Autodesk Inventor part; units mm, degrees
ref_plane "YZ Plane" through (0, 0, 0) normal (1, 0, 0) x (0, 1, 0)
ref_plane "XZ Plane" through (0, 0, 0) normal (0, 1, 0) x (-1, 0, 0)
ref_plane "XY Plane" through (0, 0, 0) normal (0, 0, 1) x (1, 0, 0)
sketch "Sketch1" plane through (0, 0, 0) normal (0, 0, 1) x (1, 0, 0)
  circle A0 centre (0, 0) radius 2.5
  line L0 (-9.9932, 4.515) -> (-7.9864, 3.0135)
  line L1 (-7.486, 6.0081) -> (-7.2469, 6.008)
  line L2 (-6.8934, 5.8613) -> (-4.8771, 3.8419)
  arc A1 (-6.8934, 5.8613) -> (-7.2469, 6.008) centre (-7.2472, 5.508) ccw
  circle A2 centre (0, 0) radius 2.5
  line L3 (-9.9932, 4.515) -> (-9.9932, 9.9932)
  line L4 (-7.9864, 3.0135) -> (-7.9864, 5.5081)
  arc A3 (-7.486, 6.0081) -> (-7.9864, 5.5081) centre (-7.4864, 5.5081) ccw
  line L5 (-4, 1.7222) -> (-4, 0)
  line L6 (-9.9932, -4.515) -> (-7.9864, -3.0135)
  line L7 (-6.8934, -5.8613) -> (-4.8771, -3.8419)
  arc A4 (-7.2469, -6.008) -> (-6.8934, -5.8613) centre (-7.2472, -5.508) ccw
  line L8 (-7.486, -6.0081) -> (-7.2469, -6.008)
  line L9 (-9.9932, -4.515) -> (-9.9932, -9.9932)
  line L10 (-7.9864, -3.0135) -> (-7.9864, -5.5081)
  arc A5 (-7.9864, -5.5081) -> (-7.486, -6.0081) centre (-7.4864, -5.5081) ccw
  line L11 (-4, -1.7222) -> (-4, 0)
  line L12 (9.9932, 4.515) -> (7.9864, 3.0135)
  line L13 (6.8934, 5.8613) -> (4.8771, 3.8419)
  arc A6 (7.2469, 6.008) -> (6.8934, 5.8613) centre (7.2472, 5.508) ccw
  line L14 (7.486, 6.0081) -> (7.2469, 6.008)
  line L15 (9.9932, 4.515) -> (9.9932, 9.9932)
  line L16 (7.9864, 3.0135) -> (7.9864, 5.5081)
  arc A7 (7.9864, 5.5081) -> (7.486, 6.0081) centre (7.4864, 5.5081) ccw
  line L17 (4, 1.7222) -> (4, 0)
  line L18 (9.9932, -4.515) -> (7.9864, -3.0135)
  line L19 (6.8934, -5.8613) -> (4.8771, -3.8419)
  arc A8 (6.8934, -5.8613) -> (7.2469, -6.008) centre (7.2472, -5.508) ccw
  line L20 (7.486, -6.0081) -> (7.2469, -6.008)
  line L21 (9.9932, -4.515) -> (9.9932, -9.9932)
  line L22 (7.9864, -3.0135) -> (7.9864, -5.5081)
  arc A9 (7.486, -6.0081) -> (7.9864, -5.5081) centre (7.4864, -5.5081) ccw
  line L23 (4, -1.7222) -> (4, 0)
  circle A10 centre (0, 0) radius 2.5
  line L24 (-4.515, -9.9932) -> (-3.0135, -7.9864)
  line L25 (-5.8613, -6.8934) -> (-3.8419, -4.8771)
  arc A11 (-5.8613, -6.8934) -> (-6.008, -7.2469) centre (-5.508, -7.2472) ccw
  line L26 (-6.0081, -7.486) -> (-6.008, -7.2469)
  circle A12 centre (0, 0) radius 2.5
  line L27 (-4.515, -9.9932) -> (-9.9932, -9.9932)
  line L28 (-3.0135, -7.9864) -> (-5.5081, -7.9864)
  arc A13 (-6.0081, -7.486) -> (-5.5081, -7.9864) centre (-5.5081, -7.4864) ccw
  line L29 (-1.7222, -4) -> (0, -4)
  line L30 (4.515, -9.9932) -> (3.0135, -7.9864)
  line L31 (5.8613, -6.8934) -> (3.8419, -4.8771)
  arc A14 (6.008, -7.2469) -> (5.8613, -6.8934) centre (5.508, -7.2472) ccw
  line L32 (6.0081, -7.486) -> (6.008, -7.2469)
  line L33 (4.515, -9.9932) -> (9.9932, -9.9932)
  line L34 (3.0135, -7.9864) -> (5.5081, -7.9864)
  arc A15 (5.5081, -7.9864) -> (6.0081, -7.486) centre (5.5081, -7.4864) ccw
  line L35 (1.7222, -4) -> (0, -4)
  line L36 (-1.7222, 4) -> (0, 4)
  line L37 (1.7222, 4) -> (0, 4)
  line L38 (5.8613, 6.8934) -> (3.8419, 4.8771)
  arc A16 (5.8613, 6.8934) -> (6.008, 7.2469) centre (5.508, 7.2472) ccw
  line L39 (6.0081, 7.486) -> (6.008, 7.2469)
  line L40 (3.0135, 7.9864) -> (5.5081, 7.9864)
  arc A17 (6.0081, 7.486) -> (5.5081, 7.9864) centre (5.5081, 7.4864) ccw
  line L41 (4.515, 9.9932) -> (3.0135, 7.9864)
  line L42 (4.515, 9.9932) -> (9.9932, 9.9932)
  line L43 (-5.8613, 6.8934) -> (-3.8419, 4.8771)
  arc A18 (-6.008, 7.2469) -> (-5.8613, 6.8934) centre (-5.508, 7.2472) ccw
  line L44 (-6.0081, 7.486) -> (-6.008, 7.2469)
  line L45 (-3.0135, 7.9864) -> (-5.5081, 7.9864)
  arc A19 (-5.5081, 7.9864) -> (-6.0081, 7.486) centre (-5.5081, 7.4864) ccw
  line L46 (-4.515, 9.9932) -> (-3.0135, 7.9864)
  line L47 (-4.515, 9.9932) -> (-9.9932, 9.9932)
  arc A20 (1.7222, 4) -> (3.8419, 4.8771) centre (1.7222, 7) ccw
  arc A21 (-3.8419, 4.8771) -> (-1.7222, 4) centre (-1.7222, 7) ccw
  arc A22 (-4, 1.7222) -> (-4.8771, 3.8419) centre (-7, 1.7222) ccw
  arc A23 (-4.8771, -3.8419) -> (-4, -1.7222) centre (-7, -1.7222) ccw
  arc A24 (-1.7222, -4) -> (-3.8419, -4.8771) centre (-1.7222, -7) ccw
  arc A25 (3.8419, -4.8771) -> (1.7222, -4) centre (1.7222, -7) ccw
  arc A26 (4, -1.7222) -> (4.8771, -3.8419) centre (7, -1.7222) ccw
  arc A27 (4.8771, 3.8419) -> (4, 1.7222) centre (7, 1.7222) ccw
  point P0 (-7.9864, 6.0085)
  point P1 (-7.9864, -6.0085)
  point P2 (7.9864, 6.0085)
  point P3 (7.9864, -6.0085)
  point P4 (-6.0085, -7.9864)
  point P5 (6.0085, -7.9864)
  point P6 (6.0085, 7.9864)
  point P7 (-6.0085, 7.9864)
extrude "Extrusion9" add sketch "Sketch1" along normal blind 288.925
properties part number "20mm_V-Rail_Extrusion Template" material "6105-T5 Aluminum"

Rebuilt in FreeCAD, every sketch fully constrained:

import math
import FreeCAD as App
import Part
import Sketcher

doc = App.newDocument("Part")
body = doc.addObject("PartDesign::Body", "Body")

sketch1 = body.newObject("Sketcher::SketchObject", "Sketch")
sketch1.AttachmentSupport = (doc.getObject("XY_Plane"), [""])
sketch1.MapMode = "FlatFace"
sketch1.addGeometry([
    Part.LineSegment(App.Vector(-9.99, 9.99, 0), App.Vector(-9.99, 4.51, 0)),
    Part.LineSegment(App.Vector(-9.99, 4.51, 0), App.Vector(-7.99, 3.01, 0)),
    Part.LineSegment(App.Vector(-7.99, 3.01, 0), App.Vector(-7.99, 5.51, 0)),
    Part.ArcOfCircle(Part.Circle(App.Vector(-7.49, 5.51, 0), App.Vector(0, 0, 1), 0.5), math.radians(90), math.radians(180)),
    Part.LineSegment(App.Vector(-7.49, 6.01, 0), App.Vector(-7.25, 6.01, 0)),
    Part.ArcOfCircle(Part.Circle(App.Vector(-7.25, 5.51, 0), App.Vector(0, 0, 1), 0.5), math.radians(45), math.radians(90)),
    Part.LineSegment(App.Vector(-6.89, 5.86, 0), App.Vector(-4.88, 3.84, 0)),
    Part.ArcOfCircle(Part.Circle(App.Vector(-7, 1.72, 0), App.Vector(0, 0, 1), 3), math.radians(0), math.radians(45)),
    Part.LineSegment(App.Vector(-4, 1.72, 0), App.Vector(-4, -1.72, 0)),
    Part.ArcOfCircle(Part.Circle(App.Vector(-7, -1.72, 0), App.Vector(0, 0, 1), 3), math.radians(-45), math.radians(0)),
    Part.LineSegment(App.Vector(-4.88, -3.84, 0), App.Vector(-6.89, -5.86, 0)),
    Part.ArcOfCircle(Part.Circle(App.Vector(-7.25, -5.51, 0), App.Vector(0, 0, 1), 0.5), math.radians(-90), math.radians(-45)),
    Part.LineSegment(App.Vector(-7.25, -6.01, 0), App.Vector(-7.49, -6.01, 0)),
    Part.ArcOfCircle(Part.Circle(App.Vector(-7.49, -5.51, 0), App.Vector(0, 0, 1), 0.5), math.radians(180), math.radians(270)),
    Part.LineSegment(App.Vector(-7.99, -5.51, 0), App.Vector(-7.99, -3.01, 0)),
    Part.LineSegment(App.Vector(-7.99, -3.01, 0), App.Vector(-9.99, -4.51, 0)),
    Part.LineSegment(App.Vector(-9.99, -4.51, 0), App.Vector(-9.99, -9.99, 0)),
    Part.LineSegment(App.Vector(-9.99, -9.99, 0), App.Vector(-4.51, -9.99, 0)),
    Part.LineSegment(App.Vector(-4.51, -9.99, 0), App.Vector(-3.01, -7.99, 0)),
    Part.LineSegment(App.Vector(-3.01, -7.99, 0), App.Vector(-5.51, -7.99, 0)),
    Part.ArcOfCircle(Part.Circle(App.Vector(-5.51, -7.49, 0), App.Vector(0, 0, 1), 0.5), math.radians(180), math.radians(270)),
    Part.LineSegment(App.Vector(-6.01, -7.49, 0), App.Vector(-6.01, -7.25, 0)),
    Part.ArcOfCircle(Part.Circle(App.Vector(-5.51, -7.25, 0), App.Vector(0, 0, 1), 0.5), math.radians(135), math.radians(180)),
    Part.LineSegment(App.Vector(-5.86, -6.89, 0), App.Vector(-3.84, -4.88, 0)),
    Part.ArcOfCircle(Part.Circle(App.Vector(-1.72, -7, 0), App.Vector(0, 0, 1), 3), math.radians(90), math.radians(135)),
    Part.LineSegment(App.Vector(-1.72, -4, 0), App.Vector(1.72, -4, 0)),
    Part.ArcOfCircle(Part.Circle(App.Vector(1.72, -7, 0), App.Vector(0, 0, 1), 3), math.radians(45), math.radians(90)),
    Part.LineSegment(App.Vector(3.84, -4.88, 0), App.Vector(5.86, -6.89, 0)),
    Part.ArcOfCircle(Part.Circle(App.Vector(5.51, -7.25, 0), App.Vector(0, 0, 1), 0.5), math.radians(0), math.radians(45)),
    Part.LineSegment(App.Vector(6.01, -7.25, 0), App.Vector(6.01, -7.49, 0)),
    Part.ArcOfCircle(Part.Circle(App.Vector(5.51, -7.49, 0), App.Vector(0, 0, 1), 0.5), math.radians(-90), math.radians(0)),
    Part.LineSegment(App.Vector(5.51, -7.99, 0), App.Vector(3.01, -7.99, 0)),
    Part.LineSegment(App.Vector(3.01, -7.99, 0), App.Vector(4.51, -9.99, 0)),
    Part.LineSegment(App.Vector(4.51, -9.99, 0), App.Vector(9.99, -9.99, 0)),
    Part.LineSegment(App.Vector(9.99, -9.99, 0), App.Vector(9.99, -4.51, 0)),
    Part.LineSegment(App.Vector(9.99, -4.51, 0), App.Vector(7.99, -3.01, 0)),
    Part.LineSegment(App.Vector(7.99, -3.01, 0), App.Vector(7.99, -5.51, 0)),
    Part.ArcOfCircle(Part.Circle(App.Vector(7.49, -5.51, 0), App.Vector(0, 0, 1), 0.5), math.radians(-90), math.radians(0)),
    Part.LineSegment(App.Vector(7.49, -6.01, 0), App.Vector(7.25, -6.01, 0)),
    Part.ArcOfCircle(Part.Circle(App.Vector(7.25, -5.51, 0), App.Vector(0, 0, 1), 0.5), math.radians(-135), math.radians(-90)),
    Part.LineSegment(App.Vector(6.89, -5.86, 0), App.Vector(4.88, -3.84, 0)),
    Part.ArcOfCircle(Part.Circle(App.Vector(7, -1.72, 0), App.Vector(0, 0, 1), 3), math.radians(180), math.radians(225)),
    Part.LineSegment(App.Vector(4, -1.72, 0), App.Vector(4, 1.72, 0)),
    Part.ArcOfCircle(Part.Circle(App.Vector(7, 1.72, 0), App.Vector(0, 0, 1), 3), math.radians(135), math.radians(180)),
    Part.LineSegment(App.Vector(4.88, 3.84, 0), App.Vector(6.89, 5.86, 0)),
    Part.ArcOfCircle(Part.Circle(App.Vector(7.25, 5.51, 0), App.Vector(0, 0, 1), 0.5), math.radians(90), math.radians(135)),
    Part.LineSegment(App.Vector(7.25, 6.01, 0), App.Vector(7.49, 6.01, 0)),
    Part.ArcOfCircle(Part.Circle(App.Vector(7.49, 5.51, 0), App.Vector(0, 0, 1), 0.5), math.radians(0), math.radians(90)),
    Part.LineSegment(App.Vector(7.99, 5.51, 0), App.Vector(7.99, 3.01, 0)),
    Part.LineSegment(App.Vector(7.99, 3.01, 0), App.Vector(9.99, 4.51, 0)),
    Part.LineSegment(App.Vector(9.99, 4.51, 0), App.Vector(9.99, 9.99, 0)),
    Part.LineSegment(App.Vector(9.99, 9.99, 0), App.Vector(4.51, 9.99, 0)),
    Part.LineSegment(App.Vector(4.51, 9.99, 0), App.Vector(3.01, 7.99, 0)),
    Part.LineSegment(App.Vector(3.01, 7.99, 0), App.Vector(5.51, 7.99, 0)),
    Part.ArcOfCircle(Part.Circle(App.Vector(5.51, 7.49, 0), App.Vector(0, 0, 1), 0.5), math.radians(0), math.radians(90)),
    Part.LineSegment(App.Vector(6.01, 7.49, 0), App.Vector(6.01, 7.25, 0)),
    Part.ArcOfCircle(Part.Circle(App.Vector(5.51, 7.25, 0), App.Vector(0, 0, 1), 0.5), math.radians(-45), math.radians(0)),
    Part.LineSegment(App.Vector(5.86, 6.89, 0), App.Vector(3.84, 4.88, 0)),
    Part.ArcOfCircle(Part.Circle(App.Vector(1.72, 7, 0), App.Vector(0, 0, 1), 3), math.radians(-90), math.radians(-45)),
    Part.LineSegment(App.Vector(1.72, 4, 0), App.Vector(-1.72, 4, 0)),
    Part.ArcOfCircle(Part.Circle(App.Vector(-1.72, 7, 0), App.Vector(0, 0, 1), 3), math.radians(-135), math.radians(-90)),
    Part.LineSegment(App.Vector(-3.84, 4.88, 0), App.Vector(-5.86, 6.89, 0)),
    Part.ArcOfCircle(Part.Circle(App.Vector(-5.51, 7.25, 0), App.Vector(0, 0, 1), 0.5), math.radians(-180), math.radians(-135)),
    Part.LineSegment(App.Vector(-6.01, 7.25, 0), App.Vector(-6.01, 7.49, 0)),
    Part.ArcOfCircle(Part.Circle(App.Vector(-5.51, 7.49, 0), App.Vector(0, 0, 1), 0.5), math.radians(90), math.radians(180)),
    Part.LineSegment(App.Vector(-5.51, 7.99, 0), App.Vector(-3.01, 7.99, 0)),
    Part.LineSegment(App.Vector(-3.01, 7.99, 0), App.Vector(-4.51, 9.99, 0)),
    Part.LineSegment(App.Vector(-4.51, 9.99, 0), App.Vector(-9.99, 9.99, 0)),
    Part.Circle(App.Vector(0, 0, 0), App.Vector(0, 0, 1), 2.5),
], False)
sketch1.addConstraint([
    Sketcher.Constraint("Coincident", 0, 2, 1, 1),
    Sketcher.Constraint("Coincident", 1, 2, 2, 1),
    Sketcher.Constraint("Tangent", 2, 2, 3, 2),
    Sketcher.Constraint("Tangent", 3, 1, 4, 1),
    Sketcher.Constraint("Tangent", 4, 2, 5, 2),
    Sketcher.Constraint("Tangent", 5, 1, 6, 1),
    Sketcher.Constraint("Tangent", 6, 2, 7, 2),
    Sketcher.Constraint("Tangent", 7, 1, 8, 1),
    Sketcher.Constraint("Tangent", 8, 2, 9, 2),
    Sketcher.Constraint("Tangent", 9, 1, 10, 1),
    Sketcher.Constraint("Tangent", 10, 2, 11, 2),
    Sketcher.Constraint("Tangent", 11, 1, 12, 1),
    Sketcher.Constraint("Tangent", 12, 2, 13, 2),
    Sketcher.Constraint("Tangent", 13, 1, 14, 1),
    Sketcher.Constraint("Coincident", 14, 2, 15, 1),
    Sketcher.Constraint("Coincident", 15, 2, 16, 1),
    Sketcher.Constraint("Coincident", 16, 2, 17, 1),
    Sketcher.Constraint("Coincident", 17, 2, 18, 1),
    Sketcher.Constraint("Coincident", 18, 2, 19, 1),
    Sketcher.Constraint("Tangent", 19, 2, 20, 2),
    Sketcher.Constraint("Tangent", 20, 1, 21, 1),
    Sketcher.Constraint("Tangent", 21, 2, 22, 2),
    Sketcher.Constraint("Tangent", 22, 1, 23, 1),
    Sketcher.Constraint("Tangent", 23, 2, 24, 2),
    Sketcher.Constraint("Tangent", 24, 1, 25, 1),
    Sketcher.Constraint("Tangent", 25, 2, 26, 2),
    Sketcher.Constraint("Tangent", 26, 1, 27, 1),
    Sketcher.Constraint("Tangent", 27, 2, 28, 2),
    Sketcher.Constraint("Tangent", 28, 1, 29, 1),
    Sketcher.Constraint("Tangent", 29, 2, 30, 2),
    Sketcher.Constraint("Tangent", 30, 1, 31, 1),
    Sketcher.Constraint("Coincident", 31, 2, 32, 1),
    Sketcher.Constraint("Coincident", 32, 2, 33, 1),
    Sketcher.Constraint("Coincident", 33, 2, 34, 1),
    Sketcher.Constraint("Coincident", 34, 2, 35, 1),
    Sketcher.Constraint("Coincident", 35, 2, 36, 1),
    Sketcher.Constraint("Tangent", 36, 2, 37, 2),
    Sketcher.Constraint("Tangent", 37, 1, 38, 1),
    Sketcher.Constraint("Tangent", 38, 2, 39, 2),
    Sketcher.Constraint("Tangent", 39, 1, 40, 1),
    Sketcher.Constraint("Tangent", 40, 2, 41, 2),
    Sketcher.Constraint("Tangent", 41, 1, 42, 1),
    Sketcher.Constraint("Tangent", 42, 2, 43, 2),
    Sketcher.Constraint("Tangent", 43, 1, 44, 1),
    Sketcher.Constraint("Tangent", 44, 2, 45, 2),
    Sketcher.Constraint("Tangent", 45, 1, 46, 1),
    Sketcher.Constraint("Tangent", 46, 2, 47, 2),
    Sketcher.Constraint("Tangent", 47, 1, 48, 1),
    Sketcher.Constraint("Coincident", 48, 2, 49, 1),
    Sketcher.Constraint("Coincident", 49, 2, 50, 1),
    Sketcher.Constraint("Coincident", 50, 2, 51, 1),
    Sketcher.Constraint("Coincident", 51, 2, 52, 1),
    Sketcher.Constraint("Coincident", 52, 2, 53, 1),
    Sketcher.Constraint("Tangent", 53, 2, 54, 2),
    Sketcher.Constraint("Tangent", 54, 1, 55, 1),
    Sketcher.Constraint("Tangent", 55, 2, 56, 2),
    Sketcher.Constraint("Tangent", 56, 1, 57, 1),
    Sketcher.Constraint("Tangent", 57, 2, 58, 2),
    Sketcher.Constraint("Tangent", 58, 1, 59, 1),
    Sketcher.Constraint("Tangent", 59, 2, 60, 2),
    Sketcher.Constraint("Tangent", 60, 1, 61, 1),
    Sketcher.Constraint("Tangent", 61, 2, 62, 2),
    Sketcher.Constraint("Tangent", 62, 1, 63, 1),
    Sketcher.Constraint("Tangent", 63, 2, 64, 2),
    Sketcher.Constraint("Tangent", 64, 1, 65, 1),
    Sketcher.Constraint("Coincident", 65, 2, 66, 1),
    Sketcher.Constraint("Coincident", 66, 2, 67, 1),
    Sketcher.Constraint("Coincident", 67, 2, 0, 1),
    Sketcher.Constraint("Vertical", 0),
    Sketcher.Constraint("Vertical", 2),
    Sketcher.Constraint("Horizontal", 4),
    Sketcher.Constraint("Vertical", 8),
    Sketcher.Constraint("Horizontal", 12),
    Sketcher.Constraint("Vertical", 14),
    Sketcher.Constraint("Vertical", 16),
    Sketcher.Constraint("Horizontal", 17),
    Sketcher.Constraint("Horizontal", 19),
    Sketcher.Constraint("Vertical", 21),
    Sketcher.Constraint("Horizontal", 25),
    Sketcher.Constraint("Vertical", 29),
    Sketcher.Constraint("Horizontal", 31),
    Sketcher.Constraint("Horizontal", 33),
    Sketcher.Constraint("Vertical", 34),
    Sketcher.Constraint("Vertical", 36),
    Sketcher.Constraint("Horizontal", 38),
    Sketcher.Constraint("Vertical", 42),
    Sketcher.Constraint("Horizontal", 46),
    Sketcher.Constraint("Vertical", 48),
    Sketcher.Constraint("Vertical", 50),
    Sketcher.Constraint("Horizontal", 51),
    Sketcher.Constraint("Horizontal", 53),
    Sketcher.Constraint("Vertical", 55),
    Sketcher.Constraint("Horizontal", 59),
    Sketcher.Constraint("Vertical", 63),
    Sketcher.Constraint("Horizontal", 65),
    Sketcher.Constraint("Horizontal", 67),
    Sketcher.Constraint("Coincident", 68, 3, -1, 1),
    Sketcher.Constraint("Equal", 3, 5),
    Sketcher.Constraint("Equal", 7, 9),
    Sketcher.Constraint("Equal", 5, 11),
    Sketcher.Constraint("Equal", 11, 13),
    Sketcher.Constraint("Equal", 13, 20),
    Sketcher.Constraint("Equal", 20, 22),
    Sketcher.Constraint("Equal", 9, 24),
    Sketcher.Constraint("Equal", 24, 26),
    Sketcher.Constraint("Equal", 22, 28),
    Sketcher.Constraint("Equal", 28, 30),
    Sketcher.Constraint("Equal", 30, 37),
    Sketcher.Constraint("Equal", 37, 39),
    Sketcher.Constraint("Equal", 26, 41),
    Sketcher.Constraint("Equal", 41, 43),
    Sketcher.Constraint("Equal", 39, 45),
    Sketcher.Constraint("Equal", 45, 47),
    Sketcher.Constraint("Equal", 47, 54),
    Sketcher.Constraint("Equal", 54, 56),
    Sketcher.Constraint("Equal", 43, 58),
    Sketcher.Constraint("Equal", 58, 60),
    Sketcher.Constraint("Equal", 56, 62),
    Sketcher.Constraint("Equal", 62, 64),
    Sketcher.Constraint("Symmetric", 3, 3, 37, 3, -1, 1),
    Sketcher.Constraint("Symmetric", 7, 3, 41, 3, -1, 1),
    Sketcher.Constraint("Symmetric", 11, 3, 45, 3, -1, 1),
    Sketcher.Constraint("Symmetric", 20, 3, 54, 3, -1, 1),
    Sketcher.Constraint("Symmetric", 24, 3, 58, 3, -1, 1),
    Sketcher.Constraint("Symmetric", 28, 3, 62, 3, -1, 1),
    Sketcher.Constraint("Symmetric", 0, 2, 34, 2, -1, 1),
    Sketcher.Constraint("Symmetric", 14, 2, 48, 2, -1, 1),
    Sketcher.Constraint("Symmetric", 15, 2, 49, 2, -1, 1),
    Sketcher.Constraint("Symmetric", 17, 2, 51, 2, -1, 1),
    Sketcher.Constraint("Symmetric", 31, 2, 65, 2, -1, 1),
    Sketcher.Constraint("Symmetric", 32, 2, 66, 2, -1, 1),
    Sketcher.Constraint("Symmetric", 22, 3, 28, 3, -2),
    Sketcher.Constraint("Symmetric", 13, 3, 37, 3, -2),
    Sketcher.Constraint("Symmetric", 18, 2, 31, 2, -2),
    Sketcher.Constraint("Symmetric", 17, 2, 32, 2, -2),
    Sketcher.Constraint("Symmetric", 15, 2, 34, 2, -2),
    Sketcher.Constraint("Symmetric", 10, 2, 39, 1, -2),
    Sketcher.Constraint("Symmetric", 6, 2, 43, 1, -2),
    Sketcher.Constraint("Symmetric", 57, 2, 60, 1, -2),
    Sketcher.Constraint("Perpendicular", 1, 18),
    Sketcher.Constraint("Perpendicular", 6, 23),
    Sketcher.Constraint("Perpendicular", 10, 27),
    Sketcher.Constraint("Perpendicular", 15, 32),
    Sketcher.Constraint("Perpendicular", 18, 35),
    Sketcher.Constraint("Perpendicular", 35, 52),
    Sketcher.Constraint("Equal", 67, 0),
    Sketcher.Constraint("Equal", 65, 2),
    Sketcher.Constraint("Equal", 59, 8),
    Sketcher.Constraint("Equal", 46, 21),
    Sketcher.Constraint("Equal", 15, 18),
    Sketcher.Constraint("Equal", 10, 23),
    Sketcher.Constraint("Diameter", 68, 5.0),
    Sketcher.Constraint("Radius", 7, 3.0),
    Sketcher.Constraint("Radius", 3, 0.5),
    Sketcher.Constraint("DistanceX", 7, 3, -1, 1, 7.0),
    Sketcher.Constraint("DistanceX", 4, 1, 4, 2, 0.239),
    Sketcher.Constraint("DistanceX", 17, 1, 17, 2, 5.4782),
    Sketcher.Constraint("DistanceX", 19, 2, 19, 1, 2.4946),
    Sketcher.Constraint("DistanceX", 25, 1, 25, 2, 3.4444),
    Sketcher.Constraint("DistanceY", -1, 1, 3, 3, 5.508),
    Sketcher.Constraint("DistanceY", -1, 1, 0, 2, 4.515),
    Sketcher.Constraint("DistanceX", 3, 1, -1, 1, 7.486),
])
pad1 = body.newObject("PartDesign::Pad", "Pad")
pad1.Profile = sketch1
pad1.Length = 288.925

doc.recompute()
